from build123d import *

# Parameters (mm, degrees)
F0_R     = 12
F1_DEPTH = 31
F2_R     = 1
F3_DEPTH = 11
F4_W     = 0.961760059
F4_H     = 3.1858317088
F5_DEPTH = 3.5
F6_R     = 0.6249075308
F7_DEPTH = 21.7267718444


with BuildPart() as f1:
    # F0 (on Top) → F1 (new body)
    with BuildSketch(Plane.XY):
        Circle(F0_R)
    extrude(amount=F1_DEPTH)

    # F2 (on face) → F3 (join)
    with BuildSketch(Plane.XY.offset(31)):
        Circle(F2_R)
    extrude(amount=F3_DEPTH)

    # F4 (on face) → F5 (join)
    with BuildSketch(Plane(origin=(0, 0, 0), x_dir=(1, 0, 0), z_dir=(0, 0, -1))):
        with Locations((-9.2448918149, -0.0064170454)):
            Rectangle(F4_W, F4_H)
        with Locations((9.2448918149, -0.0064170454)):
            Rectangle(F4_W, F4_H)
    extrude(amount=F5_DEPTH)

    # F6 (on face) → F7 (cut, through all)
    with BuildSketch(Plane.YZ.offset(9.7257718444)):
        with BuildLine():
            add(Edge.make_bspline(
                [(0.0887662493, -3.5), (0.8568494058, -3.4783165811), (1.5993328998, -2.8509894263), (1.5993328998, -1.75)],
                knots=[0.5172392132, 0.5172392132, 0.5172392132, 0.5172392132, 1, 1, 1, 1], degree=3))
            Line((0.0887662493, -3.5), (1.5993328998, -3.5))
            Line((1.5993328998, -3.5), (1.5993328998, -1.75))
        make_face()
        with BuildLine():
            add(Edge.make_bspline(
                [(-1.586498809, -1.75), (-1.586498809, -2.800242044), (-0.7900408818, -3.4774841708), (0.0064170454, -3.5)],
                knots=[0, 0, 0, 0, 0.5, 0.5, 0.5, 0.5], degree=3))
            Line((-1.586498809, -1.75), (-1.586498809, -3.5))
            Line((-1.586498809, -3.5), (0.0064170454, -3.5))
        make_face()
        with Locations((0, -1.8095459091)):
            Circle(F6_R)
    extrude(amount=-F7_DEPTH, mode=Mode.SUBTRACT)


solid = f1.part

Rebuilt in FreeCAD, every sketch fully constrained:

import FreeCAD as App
import Part
import Sketcher
Q = App.Units.Quantity

doc = App.newDocument("Part")
params = doc.addObject("Spreadsheet::Sheet", "Params")
for row, (alias, value) in enumerate([
    ("sketch1_diameter", "24 mm"),
    ("pad1_length", "31 mm"),
    ("sketch2_diameter", "2 mm"),
    ("pad2_length", "11 mm"),
    ("pad3_length", "3.5 mm"),
], start=1):
    params.set(f"A{row}", alias)
    params.set(f"B{row}", "=" + value)
    params.setAlias(f"B{row}", alias)

body = doc.addObject("PartDesign::Body", "Body")

sketch1 = body.newObject("Sketcher::SketchObject", "Sketch")
sketch1.AttachmentSupport = (doc.getObject("XY_Plane"), [""])
sketch1.MapMode = "FlatFace"
sketch1.addGeometry(Part.Circle(App.Vector(0, 0, 0), App.Vector(0, 0, 1), 12), False)
sketch1.addConstraint([
    Sketcher.Constraint("Coincident", 0, 3, -1, 1),
    Sketcher.Constraint("Diameter", 0, Q("24 mm")),
])
sketch1.setExpression("Constraints[1]", "Params.sketch1_diameter")
pad1 = body.newObject("PartDesign::Pad", "Pad")
pad1.Profile = sketch1
pad1.setExpression("Length", "Params.pad1_length")

sketch2 = body.newObject("Sketcher::SketchObject", "Sketch001")
sketch2.AttachmentSupport = (doc.getObject("XY_Plane"), [""])
sketch2.MapMode = "FlatFace"
sketch2.AttachmentOffset = App.Placement(App.Vector(0, 0, 31), App.Rotation())
sketch2.addGeometry(Part.Circle(App.Vector(0, 0, 0), App.Vector(0, 0, 1), 1), False)
sketch2.addConstraint([
    Sketcher.Constraint("Coincident", 0, 3, -1, 1),
    Sketcher.Constraint("Diameter", 0, Q("2 mm")),
])
sketch2.setExpression("Constraints[1]", "Params.sketch2_diameter")
pad2 = body.newObject("PartDesign::Pad", "Pad001")
pad2.Profile = sketch2
pad2.setExpression("Length", "Params.pad2_length")

sketch3 = body.newObject("Sketcher::SketchObject", "Sketch002")
sketch3.AttachmentSupport = (doc.getObject("XY_Plane"), [""])
sketch3.MapMode = "FlatFace"
sketch3.addGeometry([
    Part.LineSegment(App.Vector(-9.7, -1.6, 0), App.Vector(-9.7, 1.6, 0)),
    Part.LineSegment(App.Vector(-9.7, 1.6, 0), App.Vector(-8.8, 1.6, 0)),
    Part.LineSegment(App.Vector(-8.8, 1.6, 0), App.Vector(-8.8, -1.6, 0)),
    Part.LineSegment(App.Vector(-8.8, -1.6, 0), App.Vector(-9.7, -1.6, 0)),
    Part.LineSegment(App.Vector(8.8, -1.6, 0), App.Vector(8.8, 1.6, 0)),
    Part.LineSegment(App.Vector(8.8, 1.6, 0), App.Vector(9.7, 1.6, 0)),
    Part.LineSegment(App.Vector(9.7, 1.6, 0), App.Vector(9.7, -1.6, 0)),
    Part.LineSegment(App.Vector(9.7, -1.6, 0), App.Vector(8.8, -1.6, 0)),
], False)
sketch3.addConstraint([
    Sketcher.Constraint("Coincident", 0, 2, 1, 1),
    Sketcher.Constraint("Coincident", 1, 2, 2, 1),
    Sketcher.Constraint("Coincident", 2, 2, 3, 1),
    Sketcher.Constraint("Coincident", 3, 2, 0, 1),
    Sketcher.Constraint("Coincident", 4, 2, 5, 1),
    Sketcher.Constraint("Coincident", 5, 2, 6, 1),
    Sketcher.Constraint("Coincident", 6, 2, 7, 1),
    Sketcher.Constraint("Coincident", 7, 2, 4, 1),
    Sketcher.Constraint("Vertical", 0),
    Sketcher.Constraint("Horizontal", 1),
    Sketcher.Constraint("Vertical", 2),
    Sketcher.Constraint("Horizontal", 3),
    Sketcher.Constraint("Vertical", 4),
    Sketcher.Constraint("Horizontal", 5),
    Sketcher.Constraint("Vertical", 6),
    Sketcher.Constraint("Horizontal", 7),
    Sketcher.Constraint("Symmetric", 1, 2, 4, 2, -2),
    Sketcher.Constraint("Symmetric", 3, 2, 6, 2, -2),
    Sketcher.Constraint("DistanceX", 1, 1, 1, 2, Q("0.96176 mm")),
    Sketcher.Constraint("DistanceY", 0, 1, 0, 2, Q("3.185832 mm")),
    Sketcher.Constraint("DistanceY", 2, 2, -1, 1, Q("1.586499 mm")),
    Sketcher.Constraint("DistanceX", 0, 2, -1, 1, Q("9.725772 mm")),
])
pad3 = body.newObject("PartDesign::Pad", "Pad002")
pad3.Profile = sketch3
pad3.setExpression("Length", "Params.pad3_length")
pad3.Reversed = True

sketch4 = body.newObject("Sketcher::SketchObject", "Sketch003")
sketch4.AttachmentSupport = (doc.getObject("YZ_Plane"), [""])
sketch4.MapMode = "FlatFace"
sketch4.AttachmentOffset = App.Placement(App.Vector(0, 0, 9.725772), App.Rotation())
sketch4.addGeometry([
    Part.BSplineCurve([App.Vector(0.088766, -3.5, 0), App.Vector(0.856849, -3.478317, 0), App.Vector(1.599333, -2.850989, 0), App.Vector(1.599333, -1.75, 0)], [4, 4], [0.517239213, 1], False, 3, [1, 1, 1, 1], False),
    Part.LineSegment(App.Vector(0.088766, -3.5, 0), App.Vector(1.599333, -3.5, 0)),
    Part.LineSegment(App.Vector(1.599333, -3.5, 0), App.Vector(1.599333, -1.75, 0)),
    Part.BSplineCurve([App.Vector(-1.586499, -1.75, 0), App.Vector(-1.586499, -2.800242, 0), App.Vector(-0.790041, -3.477484, 0), App.Vector(0.006417, -3.5, 0)], [4, 4], [0, 0.5], False, 3, [1, 1, 1, 1], False),
    Part.LineSegment(App.Vector(-1.586499, -1.75, 0), App.Vector(-1.586499, -3.5, 0)),
    Part.LineSegment(App.Vector(-1.586499, -3.5, 0), App.Vector(0.006417, -3.5, 0)),
    Part.Circle(App.Vector(0, -1.809546, 0), App.Vector(0, 0, 1), 0.624908),
], False)
sketch4.addConstraint([
    Sketcher.Constraint("Block", 0),
    Sketcher.Constraint("Block", 3),
    Sketcher.Constraint("Coincident", 0, 1, 1, 1),
    Sketcher.Constraint("Coincident", 1, 2, 2, 1),
    Sketcher.Constraint("Coincident", 2, 2, 0, 2),
    Sketcher.Constraint("Coincident", 3, 1, 4, 1),
    Sketcher.Constraint("Coincident", 4, 2, 5, 1),
    Sketcher.Constraint("Coincident", 5, 2, 3, 2),
    Sketcher.Constraint("Horizontal", 1),
    Sketcher.Constraint("Vertical", 2),
    Sketcher.Constraint("Vertical", 4),
    Sketcher.Constraint("Horizontal", 5),
    Sketcher.Constraint("PointOnObject", 6, 3, -2),
    Sketcher.Constraint("Diameter", 6, Q("1.249815 mm")),
    Sketcher.Constraint("DistanceY", 6, 3, -1, 1, Q("1.809546 mm")),
])
pocket1 = body.newObject("PartDesign::Pocket", "Pocket")
pocket1.Profile = sketch4
pocket1.Type = "ThroughAll"

doc.recompute()
